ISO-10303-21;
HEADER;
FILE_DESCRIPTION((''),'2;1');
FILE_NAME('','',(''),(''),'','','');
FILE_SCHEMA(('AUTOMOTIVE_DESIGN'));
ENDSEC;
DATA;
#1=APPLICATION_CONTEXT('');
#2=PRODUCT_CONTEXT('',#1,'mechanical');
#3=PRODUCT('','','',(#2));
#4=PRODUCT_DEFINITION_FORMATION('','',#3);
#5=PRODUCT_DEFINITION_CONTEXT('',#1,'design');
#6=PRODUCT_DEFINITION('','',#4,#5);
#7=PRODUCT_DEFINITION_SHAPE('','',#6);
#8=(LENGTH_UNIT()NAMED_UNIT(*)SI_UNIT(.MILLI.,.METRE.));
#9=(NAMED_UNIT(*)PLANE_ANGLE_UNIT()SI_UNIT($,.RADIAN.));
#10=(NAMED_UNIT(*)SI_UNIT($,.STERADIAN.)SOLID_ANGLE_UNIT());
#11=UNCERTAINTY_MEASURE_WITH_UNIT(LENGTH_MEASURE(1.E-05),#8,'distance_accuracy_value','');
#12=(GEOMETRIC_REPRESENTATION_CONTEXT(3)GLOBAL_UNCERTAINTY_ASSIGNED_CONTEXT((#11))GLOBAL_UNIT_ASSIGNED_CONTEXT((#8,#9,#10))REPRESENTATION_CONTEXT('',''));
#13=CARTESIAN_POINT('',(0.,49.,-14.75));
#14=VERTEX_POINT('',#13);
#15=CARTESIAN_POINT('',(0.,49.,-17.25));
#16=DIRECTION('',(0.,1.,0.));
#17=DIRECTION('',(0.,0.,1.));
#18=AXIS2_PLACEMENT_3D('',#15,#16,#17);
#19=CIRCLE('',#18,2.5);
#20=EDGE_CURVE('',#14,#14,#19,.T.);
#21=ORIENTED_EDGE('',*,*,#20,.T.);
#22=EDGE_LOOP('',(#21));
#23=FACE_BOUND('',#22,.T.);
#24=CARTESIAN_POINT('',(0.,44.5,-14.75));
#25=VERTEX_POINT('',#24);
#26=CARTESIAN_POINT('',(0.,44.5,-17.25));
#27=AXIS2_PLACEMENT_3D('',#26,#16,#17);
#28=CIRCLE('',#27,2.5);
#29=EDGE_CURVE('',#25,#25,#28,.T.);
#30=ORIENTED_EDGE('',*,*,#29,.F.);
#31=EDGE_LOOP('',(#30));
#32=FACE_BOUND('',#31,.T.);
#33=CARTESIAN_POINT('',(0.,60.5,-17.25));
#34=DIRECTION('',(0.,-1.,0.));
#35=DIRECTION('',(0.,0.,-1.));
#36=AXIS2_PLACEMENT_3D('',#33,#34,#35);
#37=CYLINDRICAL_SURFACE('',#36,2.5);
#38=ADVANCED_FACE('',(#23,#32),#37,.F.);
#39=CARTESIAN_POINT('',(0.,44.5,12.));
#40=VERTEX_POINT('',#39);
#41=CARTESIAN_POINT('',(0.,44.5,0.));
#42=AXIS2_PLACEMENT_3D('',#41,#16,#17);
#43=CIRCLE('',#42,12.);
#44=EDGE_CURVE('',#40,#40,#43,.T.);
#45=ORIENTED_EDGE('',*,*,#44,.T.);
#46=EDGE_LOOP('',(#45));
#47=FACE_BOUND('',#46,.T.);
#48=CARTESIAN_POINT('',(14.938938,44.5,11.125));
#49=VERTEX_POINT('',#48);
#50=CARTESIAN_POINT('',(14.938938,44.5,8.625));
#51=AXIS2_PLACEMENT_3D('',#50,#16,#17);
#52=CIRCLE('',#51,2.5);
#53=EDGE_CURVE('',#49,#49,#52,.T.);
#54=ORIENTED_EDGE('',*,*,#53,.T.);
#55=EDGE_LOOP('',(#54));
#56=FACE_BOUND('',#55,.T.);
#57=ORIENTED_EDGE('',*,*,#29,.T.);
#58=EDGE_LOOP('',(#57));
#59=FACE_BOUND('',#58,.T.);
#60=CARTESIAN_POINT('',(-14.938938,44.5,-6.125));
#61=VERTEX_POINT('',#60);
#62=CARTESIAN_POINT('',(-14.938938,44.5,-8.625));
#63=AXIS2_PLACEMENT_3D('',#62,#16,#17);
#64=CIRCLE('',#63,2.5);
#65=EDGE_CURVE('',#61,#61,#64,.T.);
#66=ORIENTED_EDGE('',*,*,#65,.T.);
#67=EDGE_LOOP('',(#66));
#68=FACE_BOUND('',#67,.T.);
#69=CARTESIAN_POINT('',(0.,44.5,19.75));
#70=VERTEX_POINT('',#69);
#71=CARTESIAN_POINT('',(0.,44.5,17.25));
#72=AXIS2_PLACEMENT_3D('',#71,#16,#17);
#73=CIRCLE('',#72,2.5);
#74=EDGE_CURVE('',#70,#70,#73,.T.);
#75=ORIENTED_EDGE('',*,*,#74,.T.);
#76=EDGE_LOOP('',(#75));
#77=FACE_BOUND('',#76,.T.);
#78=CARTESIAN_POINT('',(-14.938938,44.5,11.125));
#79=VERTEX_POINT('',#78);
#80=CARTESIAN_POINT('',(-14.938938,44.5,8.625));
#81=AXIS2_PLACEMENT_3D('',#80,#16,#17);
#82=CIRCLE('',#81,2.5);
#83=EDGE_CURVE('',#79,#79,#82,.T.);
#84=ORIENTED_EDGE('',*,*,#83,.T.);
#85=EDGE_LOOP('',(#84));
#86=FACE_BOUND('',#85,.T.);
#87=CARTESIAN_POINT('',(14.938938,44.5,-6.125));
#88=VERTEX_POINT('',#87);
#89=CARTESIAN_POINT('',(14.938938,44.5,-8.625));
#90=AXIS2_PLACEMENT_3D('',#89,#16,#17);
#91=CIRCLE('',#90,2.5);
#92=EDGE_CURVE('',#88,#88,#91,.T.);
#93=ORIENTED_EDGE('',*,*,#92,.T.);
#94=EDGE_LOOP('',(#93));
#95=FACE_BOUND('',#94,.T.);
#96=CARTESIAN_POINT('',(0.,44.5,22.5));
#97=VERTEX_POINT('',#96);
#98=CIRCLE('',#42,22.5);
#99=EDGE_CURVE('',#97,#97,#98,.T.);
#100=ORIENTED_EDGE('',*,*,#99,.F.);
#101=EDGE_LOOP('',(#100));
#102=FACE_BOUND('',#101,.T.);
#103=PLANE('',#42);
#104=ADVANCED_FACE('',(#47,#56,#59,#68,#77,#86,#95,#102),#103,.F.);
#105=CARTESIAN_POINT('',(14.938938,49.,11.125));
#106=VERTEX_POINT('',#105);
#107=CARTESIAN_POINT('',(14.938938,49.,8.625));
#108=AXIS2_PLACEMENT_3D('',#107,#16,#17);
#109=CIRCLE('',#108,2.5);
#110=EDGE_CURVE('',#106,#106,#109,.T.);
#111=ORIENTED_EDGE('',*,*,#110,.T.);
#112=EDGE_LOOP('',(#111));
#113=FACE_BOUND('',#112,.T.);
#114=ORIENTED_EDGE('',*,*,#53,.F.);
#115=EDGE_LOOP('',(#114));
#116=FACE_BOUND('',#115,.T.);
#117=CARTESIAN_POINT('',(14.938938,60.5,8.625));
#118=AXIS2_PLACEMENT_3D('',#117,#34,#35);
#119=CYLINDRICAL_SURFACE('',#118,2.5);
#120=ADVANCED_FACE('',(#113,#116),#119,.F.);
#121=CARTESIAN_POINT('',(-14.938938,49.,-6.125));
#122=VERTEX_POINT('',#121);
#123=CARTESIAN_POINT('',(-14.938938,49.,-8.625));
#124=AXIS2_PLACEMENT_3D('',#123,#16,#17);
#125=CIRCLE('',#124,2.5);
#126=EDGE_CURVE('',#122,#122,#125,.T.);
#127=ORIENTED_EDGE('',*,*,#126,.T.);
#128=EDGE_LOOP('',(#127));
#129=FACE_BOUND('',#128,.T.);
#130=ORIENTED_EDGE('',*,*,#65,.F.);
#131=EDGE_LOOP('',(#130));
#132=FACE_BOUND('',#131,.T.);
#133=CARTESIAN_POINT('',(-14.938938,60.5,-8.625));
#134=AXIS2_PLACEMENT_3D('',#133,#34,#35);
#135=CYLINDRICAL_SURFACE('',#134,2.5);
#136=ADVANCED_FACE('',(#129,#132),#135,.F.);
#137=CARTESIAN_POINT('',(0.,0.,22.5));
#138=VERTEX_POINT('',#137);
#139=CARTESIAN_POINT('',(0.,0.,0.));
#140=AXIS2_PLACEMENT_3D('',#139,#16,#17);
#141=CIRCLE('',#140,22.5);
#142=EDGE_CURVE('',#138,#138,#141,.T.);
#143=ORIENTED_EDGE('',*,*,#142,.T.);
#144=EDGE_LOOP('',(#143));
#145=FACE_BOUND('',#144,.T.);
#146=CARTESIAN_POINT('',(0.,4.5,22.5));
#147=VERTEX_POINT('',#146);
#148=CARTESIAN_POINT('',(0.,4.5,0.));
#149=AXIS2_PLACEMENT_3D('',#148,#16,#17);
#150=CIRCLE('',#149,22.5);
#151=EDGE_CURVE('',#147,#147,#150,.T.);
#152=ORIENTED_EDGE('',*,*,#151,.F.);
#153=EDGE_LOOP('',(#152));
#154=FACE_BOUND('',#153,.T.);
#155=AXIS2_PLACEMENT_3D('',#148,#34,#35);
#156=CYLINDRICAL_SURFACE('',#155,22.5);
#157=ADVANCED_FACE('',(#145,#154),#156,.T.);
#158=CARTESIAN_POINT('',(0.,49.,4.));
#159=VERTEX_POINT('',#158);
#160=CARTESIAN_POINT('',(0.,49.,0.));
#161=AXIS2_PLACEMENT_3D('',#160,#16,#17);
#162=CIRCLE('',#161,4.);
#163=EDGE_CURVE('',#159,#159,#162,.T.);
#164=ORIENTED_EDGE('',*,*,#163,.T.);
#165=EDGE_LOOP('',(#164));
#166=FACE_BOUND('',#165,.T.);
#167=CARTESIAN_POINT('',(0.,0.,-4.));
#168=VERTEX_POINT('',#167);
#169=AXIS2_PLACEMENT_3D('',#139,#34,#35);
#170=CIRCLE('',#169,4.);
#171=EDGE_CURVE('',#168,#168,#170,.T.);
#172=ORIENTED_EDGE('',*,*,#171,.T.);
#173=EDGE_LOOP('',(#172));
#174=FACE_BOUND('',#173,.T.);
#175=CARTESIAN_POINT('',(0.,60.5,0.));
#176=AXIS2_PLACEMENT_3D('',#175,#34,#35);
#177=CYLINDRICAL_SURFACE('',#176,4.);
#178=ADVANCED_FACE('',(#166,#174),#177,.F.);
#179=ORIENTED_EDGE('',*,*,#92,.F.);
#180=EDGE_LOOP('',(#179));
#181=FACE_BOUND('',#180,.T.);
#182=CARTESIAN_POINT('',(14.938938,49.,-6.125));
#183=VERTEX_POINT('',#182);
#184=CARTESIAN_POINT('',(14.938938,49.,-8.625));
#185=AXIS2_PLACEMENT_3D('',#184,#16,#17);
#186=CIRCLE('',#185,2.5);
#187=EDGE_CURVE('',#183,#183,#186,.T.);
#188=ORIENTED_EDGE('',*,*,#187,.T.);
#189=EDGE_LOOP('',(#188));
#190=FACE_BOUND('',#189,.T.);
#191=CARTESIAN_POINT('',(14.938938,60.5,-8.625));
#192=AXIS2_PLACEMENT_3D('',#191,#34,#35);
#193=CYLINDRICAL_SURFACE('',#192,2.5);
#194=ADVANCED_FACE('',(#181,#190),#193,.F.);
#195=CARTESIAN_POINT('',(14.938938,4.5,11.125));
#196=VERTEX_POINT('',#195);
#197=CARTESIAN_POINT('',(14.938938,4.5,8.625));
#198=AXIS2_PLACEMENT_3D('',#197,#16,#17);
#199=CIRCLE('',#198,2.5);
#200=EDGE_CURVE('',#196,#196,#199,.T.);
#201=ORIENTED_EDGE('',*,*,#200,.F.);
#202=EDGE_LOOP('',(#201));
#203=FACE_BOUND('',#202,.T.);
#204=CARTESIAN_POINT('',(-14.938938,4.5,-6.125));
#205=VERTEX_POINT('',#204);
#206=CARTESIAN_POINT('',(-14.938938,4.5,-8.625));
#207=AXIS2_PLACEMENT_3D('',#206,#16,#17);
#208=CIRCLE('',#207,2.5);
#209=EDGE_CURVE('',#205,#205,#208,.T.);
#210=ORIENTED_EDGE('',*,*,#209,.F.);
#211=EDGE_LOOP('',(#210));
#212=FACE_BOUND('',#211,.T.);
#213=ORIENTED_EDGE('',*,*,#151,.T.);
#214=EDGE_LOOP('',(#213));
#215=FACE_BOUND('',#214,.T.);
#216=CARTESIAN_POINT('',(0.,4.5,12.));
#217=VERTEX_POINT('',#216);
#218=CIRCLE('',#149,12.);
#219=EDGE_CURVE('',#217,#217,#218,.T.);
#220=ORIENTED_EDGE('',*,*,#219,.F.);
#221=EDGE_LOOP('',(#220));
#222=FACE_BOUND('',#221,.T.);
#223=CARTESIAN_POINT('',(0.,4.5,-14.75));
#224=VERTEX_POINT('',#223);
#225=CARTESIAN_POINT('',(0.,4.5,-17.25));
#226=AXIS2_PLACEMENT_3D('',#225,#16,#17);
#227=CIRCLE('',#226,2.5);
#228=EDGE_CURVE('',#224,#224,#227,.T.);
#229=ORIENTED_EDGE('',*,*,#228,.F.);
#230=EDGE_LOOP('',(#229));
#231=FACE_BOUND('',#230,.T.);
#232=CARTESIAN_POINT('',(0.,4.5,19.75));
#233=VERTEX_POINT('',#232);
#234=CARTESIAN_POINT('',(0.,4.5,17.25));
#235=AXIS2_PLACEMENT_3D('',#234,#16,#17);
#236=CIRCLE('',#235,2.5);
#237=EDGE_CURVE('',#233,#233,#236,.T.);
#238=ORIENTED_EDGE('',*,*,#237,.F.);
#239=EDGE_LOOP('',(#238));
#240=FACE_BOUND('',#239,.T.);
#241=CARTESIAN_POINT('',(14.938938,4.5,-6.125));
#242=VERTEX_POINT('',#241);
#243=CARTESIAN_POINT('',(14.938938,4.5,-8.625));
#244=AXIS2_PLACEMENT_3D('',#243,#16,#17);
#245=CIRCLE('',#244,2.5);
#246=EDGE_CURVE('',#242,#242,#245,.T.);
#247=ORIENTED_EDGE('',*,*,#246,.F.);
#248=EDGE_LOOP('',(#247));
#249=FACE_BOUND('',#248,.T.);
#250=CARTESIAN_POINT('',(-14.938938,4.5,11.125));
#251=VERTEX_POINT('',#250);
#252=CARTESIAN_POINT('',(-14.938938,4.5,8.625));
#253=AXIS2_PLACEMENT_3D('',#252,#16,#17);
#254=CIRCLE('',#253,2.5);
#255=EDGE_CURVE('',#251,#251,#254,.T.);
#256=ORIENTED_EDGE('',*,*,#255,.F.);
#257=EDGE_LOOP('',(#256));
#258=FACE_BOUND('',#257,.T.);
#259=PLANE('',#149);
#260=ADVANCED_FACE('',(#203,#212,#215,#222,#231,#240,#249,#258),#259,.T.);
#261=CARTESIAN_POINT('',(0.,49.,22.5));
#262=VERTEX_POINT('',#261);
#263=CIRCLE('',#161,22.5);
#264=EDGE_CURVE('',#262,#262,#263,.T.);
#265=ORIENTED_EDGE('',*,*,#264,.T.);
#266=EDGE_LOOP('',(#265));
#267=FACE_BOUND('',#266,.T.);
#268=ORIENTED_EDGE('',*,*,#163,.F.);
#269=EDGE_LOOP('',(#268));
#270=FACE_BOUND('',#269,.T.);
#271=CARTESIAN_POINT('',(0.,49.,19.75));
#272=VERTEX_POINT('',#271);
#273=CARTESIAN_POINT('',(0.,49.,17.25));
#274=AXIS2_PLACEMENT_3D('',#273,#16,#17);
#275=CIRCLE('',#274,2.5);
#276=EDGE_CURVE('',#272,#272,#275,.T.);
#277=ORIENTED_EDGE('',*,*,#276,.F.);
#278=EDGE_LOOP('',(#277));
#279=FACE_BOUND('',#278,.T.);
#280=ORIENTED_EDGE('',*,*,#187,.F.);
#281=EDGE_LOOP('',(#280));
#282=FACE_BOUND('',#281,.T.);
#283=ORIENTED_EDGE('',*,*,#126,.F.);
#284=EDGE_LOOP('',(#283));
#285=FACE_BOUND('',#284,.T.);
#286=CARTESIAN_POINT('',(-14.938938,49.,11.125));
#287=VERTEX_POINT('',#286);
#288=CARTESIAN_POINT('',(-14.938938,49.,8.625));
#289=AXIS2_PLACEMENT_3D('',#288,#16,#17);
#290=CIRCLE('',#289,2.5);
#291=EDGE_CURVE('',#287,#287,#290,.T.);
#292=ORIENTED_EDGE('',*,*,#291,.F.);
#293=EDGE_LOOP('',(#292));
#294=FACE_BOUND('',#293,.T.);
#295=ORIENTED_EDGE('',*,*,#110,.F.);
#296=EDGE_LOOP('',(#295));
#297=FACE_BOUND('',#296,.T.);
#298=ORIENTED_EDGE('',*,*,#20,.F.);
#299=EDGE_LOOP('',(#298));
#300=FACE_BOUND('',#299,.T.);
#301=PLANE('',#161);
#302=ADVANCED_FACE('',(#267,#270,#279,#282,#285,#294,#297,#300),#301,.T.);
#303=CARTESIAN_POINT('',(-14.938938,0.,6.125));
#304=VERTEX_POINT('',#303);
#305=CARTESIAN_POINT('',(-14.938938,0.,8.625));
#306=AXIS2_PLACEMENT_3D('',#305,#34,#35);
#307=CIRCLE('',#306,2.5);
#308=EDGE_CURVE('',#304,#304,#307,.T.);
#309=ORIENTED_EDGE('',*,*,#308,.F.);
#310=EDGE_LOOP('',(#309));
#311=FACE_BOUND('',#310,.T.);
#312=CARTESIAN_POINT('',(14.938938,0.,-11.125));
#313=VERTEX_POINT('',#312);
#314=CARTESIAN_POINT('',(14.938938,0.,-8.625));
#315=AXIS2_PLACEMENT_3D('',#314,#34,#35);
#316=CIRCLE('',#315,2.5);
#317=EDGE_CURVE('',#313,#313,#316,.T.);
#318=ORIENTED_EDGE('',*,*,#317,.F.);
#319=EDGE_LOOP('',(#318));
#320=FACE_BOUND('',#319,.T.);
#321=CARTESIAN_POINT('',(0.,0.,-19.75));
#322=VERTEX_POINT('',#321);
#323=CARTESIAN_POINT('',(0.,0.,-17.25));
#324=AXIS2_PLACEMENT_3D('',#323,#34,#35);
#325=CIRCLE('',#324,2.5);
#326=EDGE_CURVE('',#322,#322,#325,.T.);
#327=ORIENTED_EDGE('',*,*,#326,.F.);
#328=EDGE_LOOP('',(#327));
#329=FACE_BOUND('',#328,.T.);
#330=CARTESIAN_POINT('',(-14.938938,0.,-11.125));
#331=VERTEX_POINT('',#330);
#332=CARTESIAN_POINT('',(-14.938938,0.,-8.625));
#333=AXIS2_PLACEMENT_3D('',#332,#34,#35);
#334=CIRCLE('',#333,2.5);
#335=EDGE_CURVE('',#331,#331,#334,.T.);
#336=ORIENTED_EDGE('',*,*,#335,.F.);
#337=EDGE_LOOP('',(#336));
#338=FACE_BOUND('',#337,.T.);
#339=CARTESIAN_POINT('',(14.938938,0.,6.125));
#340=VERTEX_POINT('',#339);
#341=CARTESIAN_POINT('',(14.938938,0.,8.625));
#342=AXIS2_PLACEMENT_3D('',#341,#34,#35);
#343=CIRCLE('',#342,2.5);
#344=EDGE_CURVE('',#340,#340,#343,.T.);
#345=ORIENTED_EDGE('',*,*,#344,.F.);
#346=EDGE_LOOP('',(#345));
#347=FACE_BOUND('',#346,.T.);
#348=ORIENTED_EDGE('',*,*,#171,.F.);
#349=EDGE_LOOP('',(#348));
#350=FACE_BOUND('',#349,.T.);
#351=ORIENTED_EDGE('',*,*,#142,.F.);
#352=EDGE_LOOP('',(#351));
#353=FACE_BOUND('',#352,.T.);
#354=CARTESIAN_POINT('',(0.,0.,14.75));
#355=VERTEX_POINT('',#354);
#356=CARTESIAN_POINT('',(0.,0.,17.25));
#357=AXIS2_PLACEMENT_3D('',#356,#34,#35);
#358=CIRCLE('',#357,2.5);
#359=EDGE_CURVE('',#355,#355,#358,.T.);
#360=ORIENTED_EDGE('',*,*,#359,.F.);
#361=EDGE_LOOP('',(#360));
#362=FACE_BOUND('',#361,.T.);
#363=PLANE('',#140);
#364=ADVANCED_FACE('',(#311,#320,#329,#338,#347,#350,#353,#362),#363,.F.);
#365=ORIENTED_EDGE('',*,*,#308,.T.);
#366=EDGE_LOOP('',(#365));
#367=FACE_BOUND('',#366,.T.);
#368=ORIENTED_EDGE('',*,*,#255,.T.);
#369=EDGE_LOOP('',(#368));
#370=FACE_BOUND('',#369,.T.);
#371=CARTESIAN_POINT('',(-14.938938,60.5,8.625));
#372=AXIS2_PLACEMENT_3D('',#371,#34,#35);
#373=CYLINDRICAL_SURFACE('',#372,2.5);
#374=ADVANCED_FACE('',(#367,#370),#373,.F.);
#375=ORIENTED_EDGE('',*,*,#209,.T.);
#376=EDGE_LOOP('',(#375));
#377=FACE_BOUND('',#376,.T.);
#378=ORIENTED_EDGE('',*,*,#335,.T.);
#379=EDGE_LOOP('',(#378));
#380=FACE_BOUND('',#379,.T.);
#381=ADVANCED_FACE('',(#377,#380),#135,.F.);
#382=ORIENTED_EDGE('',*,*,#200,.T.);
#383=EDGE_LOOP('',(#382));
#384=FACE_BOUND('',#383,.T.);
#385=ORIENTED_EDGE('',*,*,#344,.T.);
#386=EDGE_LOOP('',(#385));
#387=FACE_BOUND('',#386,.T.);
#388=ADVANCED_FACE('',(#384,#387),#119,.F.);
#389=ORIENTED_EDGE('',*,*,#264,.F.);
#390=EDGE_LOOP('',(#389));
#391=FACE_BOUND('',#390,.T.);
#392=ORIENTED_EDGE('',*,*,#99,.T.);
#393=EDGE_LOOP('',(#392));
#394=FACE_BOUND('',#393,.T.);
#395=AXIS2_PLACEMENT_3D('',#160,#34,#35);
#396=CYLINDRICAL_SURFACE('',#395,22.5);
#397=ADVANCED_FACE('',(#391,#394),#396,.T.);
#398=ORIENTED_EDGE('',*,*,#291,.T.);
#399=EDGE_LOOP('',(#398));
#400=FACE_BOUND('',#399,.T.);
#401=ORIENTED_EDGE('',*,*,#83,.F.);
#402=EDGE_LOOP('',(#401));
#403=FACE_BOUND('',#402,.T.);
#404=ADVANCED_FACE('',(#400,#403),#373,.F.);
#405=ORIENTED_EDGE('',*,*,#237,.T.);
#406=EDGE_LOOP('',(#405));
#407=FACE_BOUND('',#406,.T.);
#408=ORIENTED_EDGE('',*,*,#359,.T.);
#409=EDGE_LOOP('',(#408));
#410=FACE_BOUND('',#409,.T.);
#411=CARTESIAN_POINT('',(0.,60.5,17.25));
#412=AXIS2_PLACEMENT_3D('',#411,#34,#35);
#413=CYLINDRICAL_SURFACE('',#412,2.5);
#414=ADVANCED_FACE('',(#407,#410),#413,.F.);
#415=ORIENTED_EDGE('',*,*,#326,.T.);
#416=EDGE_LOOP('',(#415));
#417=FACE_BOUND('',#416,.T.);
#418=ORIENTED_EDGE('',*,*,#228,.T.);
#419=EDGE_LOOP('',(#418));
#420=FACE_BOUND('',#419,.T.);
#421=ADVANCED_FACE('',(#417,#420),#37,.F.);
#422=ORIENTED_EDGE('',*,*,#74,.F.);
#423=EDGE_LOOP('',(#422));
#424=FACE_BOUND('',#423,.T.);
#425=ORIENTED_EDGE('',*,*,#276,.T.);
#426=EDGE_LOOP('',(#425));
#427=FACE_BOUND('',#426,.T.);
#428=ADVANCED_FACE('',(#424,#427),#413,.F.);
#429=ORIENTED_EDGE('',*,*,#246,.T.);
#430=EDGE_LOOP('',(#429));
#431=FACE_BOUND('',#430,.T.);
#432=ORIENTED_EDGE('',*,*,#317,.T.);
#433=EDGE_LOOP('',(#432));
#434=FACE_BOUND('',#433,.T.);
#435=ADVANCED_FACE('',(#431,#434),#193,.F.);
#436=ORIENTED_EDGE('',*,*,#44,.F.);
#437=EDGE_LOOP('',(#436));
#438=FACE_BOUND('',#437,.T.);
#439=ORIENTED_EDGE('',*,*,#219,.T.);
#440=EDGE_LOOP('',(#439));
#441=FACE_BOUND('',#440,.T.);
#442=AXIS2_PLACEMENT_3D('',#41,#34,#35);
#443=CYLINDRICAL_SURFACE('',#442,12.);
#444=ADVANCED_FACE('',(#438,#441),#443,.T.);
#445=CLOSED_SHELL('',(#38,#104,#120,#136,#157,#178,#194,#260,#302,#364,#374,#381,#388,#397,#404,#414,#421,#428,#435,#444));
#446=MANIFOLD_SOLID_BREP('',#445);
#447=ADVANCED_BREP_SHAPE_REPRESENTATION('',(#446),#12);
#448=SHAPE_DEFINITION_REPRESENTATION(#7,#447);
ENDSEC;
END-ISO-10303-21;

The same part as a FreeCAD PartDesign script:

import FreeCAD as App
import Part
import Sketcher
Q = App.Units.Quantity

doc = App.newDocument("Part")
body = doc.addObject("PartDesign::Body", "Body")

sketch1 = body.newObject("Sketcher::SketchObject", "Sketch")
sketch1.AttachmentSupport = (doc.getObject("XZ_Plane"), [""])
sketch1.MapMode = "FlatFace"
sketch1.addGeometry(Part.Circle(App.Vector(0, 0, 0), App.Vector(0, 0, 1), 22), False)
sketch1.addConstraint(Sketcher.Constraint("Coincident", 0, 3, -1, 1))
sketch1.addConstraint(Sketcher.Constraint("Diameter", 0, Q("45 mm")))
pad1 = body.newObject("PartDesign::Pad", "Pad")
pad1.Profile = sketch1
pad1.Length = 4.5
pad1.Reversed = True

sketch2 = body.newObject("Sketcher::SketchObject", "Sketch001")
sketch2.AttachmentSupport = (doc.getObject("XZ_Plane"), [""])
sketch2.MapMode = "FlatFace"
sketch2.AttachmentOffset = App.Placement(App.Vector(0, 0, -4.5), App.Rotation())
sketch2.addGeometry(Part.Circle(App.Vector(0, 0, 0), App.Vector(0, 0, 1), 12), False)
sketch2.addConstraint(Sketcher.Constraint("Coincident", 0, 3, -1, 1))
sketch2.addConstraint(Sketcher.Constraint("Diameter", 0, Q("24 mm")))
pad2 = body.newObject("PartDesign::Pad", "Pad001")
pad2.Profile = sketch2
pad2.Length = 40
pad2.Reversed = True

sketch3 = body.newObject("Sketcher::SketchObject", "Sketch002")
sketch3.AttachmentSupport = (doc.getObject("XZ_Plane"), [""])
sketch3.MapMode = "FlatFace"
sketch3.AttachmentOffset = App.Placement(App.Vector(0, 0, -44.5), App.Rotation())
sketch3.addGeometry(Part.Circle(App.Vector(0, 0, 0), App.Vector(0, 0, 1), 22), False)
sketch3.addConstraint(Sketcher.Constraint("Coincident", 0, 3, -1, 1))
sketch3.addConstraint(Sketcher.Constraint("Diameter", 0, Q("45 mm")))
pad3 = body.newObject("PartDesign::Pad", "Pad002")
pad3.Profile = sketch3
pad3.Length = 4.5
pad3.Reversed = True

sketch4 = body.newObject("Sketcher::SketchObject", "Sketch003")
sketch4.AttachmentSupport = (doc.getObject("XZ_Plane"), [""])
sketch4.MapMode = "FlatFace"
sketch4.addGeometry(Part.Circle(App.Vector(0, 0, 0), App.Vector(0, 0, 1), 4), False)
sketch4.addConstraint(Sketcher.Constraint("Coincident", 0, 3, -1, 1))
sketch4.addConstraint(Sketcher.Constraint("Diameter", 0, Q("8 mm")))
pocket1 = body.newObject("PartDesign::Pocket", "Pocket")
pocket1.Profile = sketch4
pocket1.Length = 60.5

sketch5 = body.newObject("Sketcher::SketchObject", "Sketch004")
sketch5.AttachmentSupport = (doc.getObject("XZ_Plane"), [""])
sketch5.MapMode = "FlatFace"
sketch5.addGeometry(Part.Circle(App.Vector(0, 17.2, 0), App.Vector(0, 0, 1), 2.5), False)
sketch5.addGeometry(Part.Circle(App.Vector(14.9, 8.6, 0), App.Vector(0, 0, 1), 2.5), False)
sketch5.addGeometry(Part.Circle(App.Vector(14.9, -8.6, 0), App.Vector(0, 0, 1), 2.5), False)
sketch5.addGeometry(Part.Circle(App.Vector(0, -17.2, 0), App.Vector(0, 0, 1), 2.5), False)
sketch5.addGeometry(Part.Circle(App.Vector(-14.9, -8.6, 0), App.Vector(0, 0, 1), 2.5), False)
sketch5.addGeometry(Part.Circle(App.Vector(-14.9, 8.6, 0), App.Vector(0, 0, 1), 2.5), False)
sketch5.addConstraint(Sketcher.Constraint("Equal", 0, 1))
sketch5.addConstraint(Sketcher.Constraint("Equal", 1, 2))
sketch5.addConstraint(Sketcher.Constraint("Equal", 2, 3))
sketch5.addConstraint(Sketcher.Constraint("Equal", 3, 4))
sketch5.addConstraint(Sketcher.Constraint("Equal", 4, 5))
sketch5.addConstraint(Sketcher.Constraint("Symmetric", 0, 3, 3, 3, -1, 1))
sketch5.addConstraint(Sketcher.Constraint("Symmetric", 1, 3, 4, 3, -1, 1))
sketch5.addConstraint(Sketcher.Constraint("Symmetric", 2, 3, 5, 3, -1, 1))
sketch5.addConstraint(Sketcher.Constraint("Symmetric", 2, 3, 4, 3, -2))
sketch5.addConstraint(Sketcher.Constraint("PointOnObject", 0, 3, -2))
sketch5.addConstraint(Sketcher.Constraint("Diameter", 0, Q("5 mm")))
sketch5.addConstraint(Sketcher.Constraint("DistanceY", 3, 3, 0, 3, Q("34.5 mm")))
sketch5.addConstraint(Sketcher.Constraint("DistanceY", 2, 3, 1, 3, Q("17.25 mm")))
sketch5.addConstraint(Sketcher.Constraint("DistanceX", -1, 1, 1, 3, Q("14.938938 mm")))
pocket2 = body.newObject("PartDesign::Pocket", "Pocket001")
pocket2.Profile = sketch5
pocket2.Length = 60.5

doc.recompute()
